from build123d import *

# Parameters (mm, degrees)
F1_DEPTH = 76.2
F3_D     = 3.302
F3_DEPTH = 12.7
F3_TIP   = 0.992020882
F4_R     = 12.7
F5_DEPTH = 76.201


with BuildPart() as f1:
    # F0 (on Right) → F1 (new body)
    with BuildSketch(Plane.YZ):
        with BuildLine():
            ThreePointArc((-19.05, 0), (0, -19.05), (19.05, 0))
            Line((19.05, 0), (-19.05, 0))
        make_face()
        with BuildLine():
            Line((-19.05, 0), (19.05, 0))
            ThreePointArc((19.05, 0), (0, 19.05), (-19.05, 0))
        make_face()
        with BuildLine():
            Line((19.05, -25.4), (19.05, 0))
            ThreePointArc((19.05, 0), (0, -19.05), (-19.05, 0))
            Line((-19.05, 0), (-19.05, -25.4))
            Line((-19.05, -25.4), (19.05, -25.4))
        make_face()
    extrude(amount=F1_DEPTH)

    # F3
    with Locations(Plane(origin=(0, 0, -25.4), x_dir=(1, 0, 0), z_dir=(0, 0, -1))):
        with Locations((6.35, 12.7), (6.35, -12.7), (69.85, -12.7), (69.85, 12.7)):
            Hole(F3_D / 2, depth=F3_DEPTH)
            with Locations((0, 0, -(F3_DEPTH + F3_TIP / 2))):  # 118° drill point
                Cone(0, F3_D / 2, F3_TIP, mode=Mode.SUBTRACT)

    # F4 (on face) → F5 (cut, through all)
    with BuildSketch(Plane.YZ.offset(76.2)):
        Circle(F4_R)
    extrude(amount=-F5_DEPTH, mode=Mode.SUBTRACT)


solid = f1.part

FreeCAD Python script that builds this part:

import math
import FreeCAD as App
import Part
import Sketcher
Q = App.Units.Quantity

doc = App.newDocument("Part")
body = doc.addObject("PartDesign::Body", "Body")

# Sketch on YZ plane
sketch1 = body.newObject("Sketcher::SketchObject", "Sketch")
sketch1.AttachmentSupport = (doc.getObject("YZ_Plane"), [""])
sketch1.MapMode = "FlatFace"
sketch1.addGeometry(Part.ArcOfCircle(Part.Circle(App.Vector(0, 0, 0), App.Vector(0, 0, 1), 19), math.radians(0), math.radians(180)), False)
sketch1.addGeometry(Part.LineSegment(App.Vector(-19, 0, 0), App.Vector(-19, -25, 0)), False)
sketch1.addGeometry(Part.LineSegment(App.Vector(-19, -25, 0), App.Vector(19, -25, 0)), False)
sketch1.addGeometry(Part.LineSegment(App.Vector(19, -25, 0), App.Vector(19, 0, 0)), False)
sketch1.addConstraint(Sketcher.Constraint("Tangent", 0, 2, 1, 1))
sketch1.addConstraint(Sketcher.Constraint("Coincident", 1, 2, 2, 1))
sketch1.addConstraint(Sketcher.Constraint("Coincident", 2, 2, 3, 1))
sketch1.addConstraint(Sketcher.Constraint("Tangent", 3, 2, 0, 1))
sketch1.addConstraint(Sketcher.Constraint("Vertical", 1))
sketch1.addConstraint(Sketcher.Constraint("Horizontal", 2))
sketch1.addConstraint(Sketcher.Constraint("Vertical", 3))
sketch1.addConstraint(Sketcher.Constraint("Coincident", 0, 3, -1, 1))
sketch1.addConstraint(Sketcher.Constraint("DistanceY", 1, 2, 1, 1, Q("1 in")))
sketch1.addConstraint(Sketcher.Constraint("Radius", 0, Q("0.75 in")))
pad1 = body.newObject("PartDesign::Pad", "Pad")
pad1.Profile = sketch1
pad1.Length = Q("3 in")

# Sketch on XY plane
sketch2 = body.newObject("Sketcher::SketchObject", "Sketch001")
sketch2.AttachmentSupport = (doc.getObject("XY_Plane"), [""])
sketch2.MapMode = "FlatFace"
sketch2.AttachmentOffset = App.Placement(App.Vector(0, 0, -1 * 25.4), App.Rotation())
sketch2.addGeometry(Part.Circle(App.Vector(6.3, -12.7, 0), App.Vector(0, 0, 1), 1.7), False)
sketch2.addGeometry(Part.Circle(App.Vector(6.3, 12.7, 0), App.Vector(0, 0, 1), 1.7), False)
sketch2.addGeometry(Part.Circle(App.Vector(69.8, 12.7, 0), App.Vector(0, 0, 1), 1.7), False)
sketch2.addGeometry(Part.Circle(App.Vector(69.8, -12.7, 0), App.Vector(0, 0, 1), 1.7), False)
sketch2.addConstraint(Sketcher.Constraint("Equal", 0, 1))
sketch2.addConstraint(Sketcher.Constraint("Equal", 1, 2))
sketch2.addConstraint(Sketcher.Constraint("Equal", 2, 3))
sketch2.addConstraint(Sketcher.Constraint("Symmetric", 0, 3, 1, 3, -1))
sketch2.addConstraint(Sketcher.Constraint("Symmetric", 2, 3, 3, 3, -1))
sketch2.addConstraint(Sketcher.Constraint("Horizontal", 1, 3, 2, 3))
sketch2.addConstraint(Sketcher.Constraint("Diameter", 0, Q("0.13 in")))
sketch2.addConstraint(Sketcher.Constraint("DistanceY", 0, 3, 1, 3, Q("1 in")))
sketch2.addConstraint(Sketcher.Constraint("DistanceX", 1, 3, 2, 3, Q("2.5 in")))
sketch2.addConstraint(Sketcher.Constraint("DistanceX", -1, 1, 0, 3, Q("0.25 in")))
doc.recompute()
hole = body.newObject("PartDesign::Hole", "Hole")
hole.Profile = sketch2
hole.ThreadType = "None"
hole.Diameter = Q("0.13 in")
hole.DepthType = "Dimension"
hole.Depth = Q("0.5 in")
hole.DrillPoint = "Angled"
hole.DrillPointAngle = 118
hole.Reversed = True

# Sketch on YZ plane
sketch3 = body.newObject("Sketcher::SketchObject", "Sketch002")
sketch3.AttachmentSupport = (doc.getObject("YZ_Plane"), [""])
sketch3.MapMode = "FlatFace"
sketch3.AttachmentOffset = App.Placement(App.Vector(0, 0, 3 * 25.4), App.Rotation())
sketch3.addGeometry(Part.Circle(App.Vector(0, 0, 0), App.Vector(0, 0, 1), 13), False)
sketch3.addConstraint(Sketcher.Constraint("Coincident", 0, 3, -1, 1))
sketch3.addConstraint(Sketcher.Constraint("Diameter", 0, Q("1 in")))
pocket1 = body.newObject("PartDesign::Pocket", "Pocket")
pocket1.Profile = sketch3
pocket1.Type = "ThroughAll"

doc.recompute()
